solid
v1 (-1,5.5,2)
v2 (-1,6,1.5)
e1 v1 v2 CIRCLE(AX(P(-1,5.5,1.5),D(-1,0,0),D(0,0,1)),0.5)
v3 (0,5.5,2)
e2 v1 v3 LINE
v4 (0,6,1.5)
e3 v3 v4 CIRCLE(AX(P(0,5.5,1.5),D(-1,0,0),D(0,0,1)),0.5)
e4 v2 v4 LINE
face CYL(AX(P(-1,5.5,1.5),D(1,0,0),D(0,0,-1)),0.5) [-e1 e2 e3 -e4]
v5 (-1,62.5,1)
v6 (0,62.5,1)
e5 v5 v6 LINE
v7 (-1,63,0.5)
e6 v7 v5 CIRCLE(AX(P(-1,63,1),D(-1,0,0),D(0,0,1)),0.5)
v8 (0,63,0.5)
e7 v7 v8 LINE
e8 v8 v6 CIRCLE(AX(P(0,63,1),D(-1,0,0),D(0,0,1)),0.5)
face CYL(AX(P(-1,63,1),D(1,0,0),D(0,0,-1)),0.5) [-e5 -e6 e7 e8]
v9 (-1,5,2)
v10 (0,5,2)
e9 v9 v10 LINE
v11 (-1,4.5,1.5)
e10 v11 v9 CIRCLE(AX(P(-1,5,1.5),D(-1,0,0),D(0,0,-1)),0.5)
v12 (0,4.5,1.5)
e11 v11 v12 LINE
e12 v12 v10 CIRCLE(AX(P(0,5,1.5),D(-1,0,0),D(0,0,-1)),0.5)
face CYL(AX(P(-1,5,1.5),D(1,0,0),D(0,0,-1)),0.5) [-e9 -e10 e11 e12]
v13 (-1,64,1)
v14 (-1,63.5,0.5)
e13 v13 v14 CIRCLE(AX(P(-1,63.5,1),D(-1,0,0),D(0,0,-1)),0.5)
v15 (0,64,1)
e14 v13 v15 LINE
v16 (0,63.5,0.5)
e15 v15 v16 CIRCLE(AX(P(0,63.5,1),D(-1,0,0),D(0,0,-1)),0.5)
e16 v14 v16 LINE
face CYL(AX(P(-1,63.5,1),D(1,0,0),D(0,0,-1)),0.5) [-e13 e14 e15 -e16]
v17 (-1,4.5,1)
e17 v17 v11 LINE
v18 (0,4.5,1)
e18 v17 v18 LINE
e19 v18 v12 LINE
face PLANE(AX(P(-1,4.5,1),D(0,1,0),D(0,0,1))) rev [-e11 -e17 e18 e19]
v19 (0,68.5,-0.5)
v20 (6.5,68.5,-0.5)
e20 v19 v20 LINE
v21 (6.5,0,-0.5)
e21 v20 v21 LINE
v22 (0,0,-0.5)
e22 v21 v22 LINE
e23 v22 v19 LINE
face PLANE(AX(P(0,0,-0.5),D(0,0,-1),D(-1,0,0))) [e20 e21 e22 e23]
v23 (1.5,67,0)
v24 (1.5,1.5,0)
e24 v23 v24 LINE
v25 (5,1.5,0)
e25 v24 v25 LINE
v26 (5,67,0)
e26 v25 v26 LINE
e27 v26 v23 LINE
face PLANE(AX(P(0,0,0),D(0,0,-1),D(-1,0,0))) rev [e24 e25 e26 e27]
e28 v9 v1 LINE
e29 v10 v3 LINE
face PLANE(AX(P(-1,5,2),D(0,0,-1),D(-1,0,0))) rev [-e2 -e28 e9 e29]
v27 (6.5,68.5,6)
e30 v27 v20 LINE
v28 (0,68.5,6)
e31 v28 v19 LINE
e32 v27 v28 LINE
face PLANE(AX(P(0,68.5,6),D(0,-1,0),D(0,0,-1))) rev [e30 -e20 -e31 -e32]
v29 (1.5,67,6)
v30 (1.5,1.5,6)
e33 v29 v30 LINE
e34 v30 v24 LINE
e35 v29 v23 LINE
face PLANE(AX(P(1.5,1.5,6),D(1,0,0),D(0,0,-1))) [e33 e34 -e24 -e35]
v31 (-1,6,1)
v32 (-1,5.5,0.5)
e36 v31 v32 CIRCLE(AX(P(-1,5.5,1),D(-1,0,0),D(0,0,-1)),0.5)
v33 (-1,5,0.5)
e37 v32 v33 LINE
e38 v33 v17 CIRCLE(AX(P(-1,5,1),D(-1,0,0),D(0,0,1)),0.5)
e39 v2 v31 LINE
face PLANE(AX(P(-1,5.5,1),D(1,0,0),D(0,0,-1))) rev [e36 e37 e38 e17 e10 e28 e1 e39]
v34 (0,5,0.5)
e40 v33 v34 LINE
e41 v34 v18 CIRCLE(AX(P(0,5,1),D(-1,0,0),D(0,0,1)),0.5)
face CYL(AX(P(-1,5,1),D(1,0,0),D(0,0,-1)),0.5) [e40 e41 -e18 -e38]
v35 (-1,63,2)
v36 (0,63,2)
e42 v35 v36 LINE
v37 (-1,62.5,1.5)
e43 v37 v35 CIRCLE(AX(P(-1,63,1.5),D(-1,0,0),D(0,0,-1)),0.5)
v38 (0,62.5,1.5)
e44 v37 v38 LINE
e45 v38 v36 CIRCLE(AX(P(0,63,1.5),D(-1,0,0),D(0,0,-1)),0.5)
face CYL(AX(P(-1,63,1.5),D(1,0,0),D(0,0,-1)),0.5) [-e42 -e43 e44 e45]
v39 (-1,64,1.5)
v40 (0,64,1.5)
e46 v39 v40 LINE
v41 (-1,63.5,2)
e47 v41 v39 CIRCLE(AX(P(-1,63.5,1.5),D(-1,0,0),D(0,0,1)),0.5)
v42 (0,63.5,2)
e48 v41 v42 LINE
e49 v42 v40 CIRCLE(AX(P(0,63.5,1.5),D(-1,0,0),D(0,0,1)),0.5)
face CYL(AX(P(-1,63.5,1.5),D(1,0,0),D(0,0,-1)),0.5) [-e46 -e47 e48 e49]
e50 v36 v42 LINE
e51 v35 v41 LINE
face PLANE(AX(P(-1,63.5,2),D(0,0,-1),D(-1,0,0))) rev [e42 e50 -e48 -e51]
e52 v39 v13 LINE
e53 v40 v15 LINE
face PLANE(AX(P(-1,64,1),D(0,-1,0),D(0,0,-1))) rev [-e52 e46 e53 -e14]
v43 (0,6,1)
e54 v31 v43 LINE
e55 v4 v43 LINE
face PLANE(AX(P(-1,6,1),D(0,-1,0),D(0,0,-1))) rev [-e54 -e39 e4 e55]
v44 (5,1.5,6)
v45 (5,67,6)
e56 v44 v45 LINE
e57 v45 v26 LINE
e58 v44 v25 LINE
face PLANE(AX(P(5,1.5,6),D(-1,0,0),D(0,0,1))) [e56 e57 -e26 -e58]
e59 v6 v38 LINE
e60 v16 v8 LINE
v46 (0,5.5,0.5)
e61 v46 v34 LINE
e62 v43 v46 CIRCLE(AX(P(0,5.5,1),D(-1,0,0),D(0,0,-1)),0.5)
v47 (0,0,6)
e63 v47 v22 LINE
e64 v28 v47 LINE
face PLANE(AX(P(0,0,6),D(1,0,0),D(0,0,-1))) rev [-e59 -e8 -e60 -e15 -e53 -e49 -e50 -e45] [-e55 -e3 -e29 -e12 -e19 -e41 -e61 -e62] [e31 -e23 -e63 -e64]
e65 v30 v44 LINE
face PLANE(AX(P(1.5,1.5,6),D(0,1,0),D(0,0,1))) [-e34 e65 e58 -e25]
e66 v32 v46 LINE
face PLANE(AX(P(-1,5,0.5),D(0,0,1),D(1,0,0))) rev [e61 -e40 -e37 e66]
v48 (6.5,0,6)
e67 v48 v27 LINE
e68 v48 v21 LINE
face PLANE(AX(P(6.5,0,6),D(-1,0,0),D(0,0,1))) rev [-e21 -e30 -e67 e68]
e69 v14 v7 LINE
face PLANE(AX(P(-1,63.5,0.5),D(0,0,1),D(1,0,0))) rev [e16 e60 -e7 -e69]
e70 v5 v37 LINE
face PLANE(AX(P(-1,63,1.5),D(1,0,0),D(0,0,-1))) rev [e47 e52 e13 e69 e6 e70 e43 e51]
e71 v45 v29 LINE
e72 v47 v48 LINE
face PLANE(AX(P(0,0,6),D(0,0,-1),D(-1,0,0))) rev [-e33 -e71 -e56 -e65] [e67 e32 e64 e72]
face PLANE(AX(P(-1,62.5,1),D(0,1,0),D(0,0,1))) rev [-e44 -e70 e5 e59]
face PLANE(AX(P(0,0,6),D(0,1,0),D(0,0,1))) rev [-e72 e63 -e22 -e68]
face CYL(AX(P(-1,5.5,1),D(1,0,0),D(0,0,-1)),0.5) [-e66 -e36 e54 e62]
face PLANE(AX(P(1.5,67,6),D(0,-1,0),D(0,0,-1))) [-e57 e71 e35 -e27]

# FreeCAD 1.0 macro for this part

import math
import FreeCAD as App
import Part
import Sketcher
from FreeCAD import Vector
Q = App.Units.Quantity


def add_polygon(sketch, points):
    """Adds a closed chain of lines whose ends are joined by coincident constraints."""
    first, n = sketch.GeometryCount, len(points)
    for a, b in zip(points, points[1:] + points[:1]):
        sketch.addGeometry(Part.LineSegment(App.Vector(*a, 0), App.Vector(*b, 0)), False)
    for i in range(n):
        sketch.addConstraint(Sketcher.Constraint("Coincident", first + i, 2, first + (i + 1) % n, 1))

doc = App.newDocument("Part")
body = doc.addObject("PartDesign::Body", "Body")

sketch1 = body.newObject("Sketcher::SketchObject", "Sketch")
sketch1.AttachmentSupport = (doc.getObject("XY_Plane"), [""])
sketch1.MapMode = "FlatFace"
add_polygon(sketch1, [(0, 68.5), (0, 0), (6.5, 0), (6.5, 68.5)])
add_polygon(sketch1, [(5, 1.5), (1.5, 1.5), (1.5, 67), (5, 67)])
sketch1.addConstraint([
    Sketcher.Constraint("Vertical", 0),
    Sketcher.Constraint("Horizontal", 1),
    Sketcher.Constraint("Vertical", 2),
    Sketcher.Constraint("Horizontal", 3),
    Sketcher.Constraint("Horizontal", 4),
    Sketcher.Constraint("Vertical", 5),
    Sketcher.Constraint("Horizontal", 6),
    Sketcher.Constraint("Vertical", 7),
    Sketcher.Constraint("Coincident", 0, 2, -1, 1),
    Sketcher.Constraint("DistanceX", 1, 1, 1, 2, Q("6.5 mm")),
    Sketcher.Constraint("DistanceX", 4, 2, 4, 1, Q("3.5 mm")),
    Sketcher.Constraint("DistanceY", 0, 2, 0, 1, Q("68.5 mm")),
    Sketcher.Constraint("DistanceY", 5, 1, 5, 2, Q("65.5 mm")),
    Sketcher.Constraint("DistanceY", -1, 1, 5, 2, Q("67 mm")),
    Sketcher.Constraint("DistanceX", -1, 1, 6, 2, Q("5 mm")),
])
pad1 = body.newObject("PartDesign::Pad", "Pad")
pad1.Profile = sketch1
pad1.Length = 6

sketch2 = body.newObject("Sketcher::SketchObject", "Sketch001")
sketch2.AttachmentSupport = (doc.getObject("XY_Plane"), [""])
sketch2.MapMode = "FlatFace"
add_polygon(sketch2, [(6, 68), (6, 0), (0, 0), (0, 68)])
sketch2.addConstraint([
    Sketcher.Constraint("Vertical", 0),
    Sketcher.Constraint("Horizontal", 1),
    Sketcher.Constraint("Vertical", 2),
    Sketcher.Constraint("Horizontal", 3),
    Sketcher.Constraint("Coincident", 1, 2, -1, 1),
    Sketcher.Constraint("DistanceX", 1, 2, 1, 1, Q("6.5 mm")),
    Sketcher.Constraint("DistanceY", 0, 2, 0, 1, Q("68.5 mm")),
])
pad2 = body.newObject("PartDesign::Pad", "Pad001")
pad2.Profile = sketch2
pad2.Length = 0.5
pad2.Reversed = True

sketch3 = body.newObject("Sketcher::SketchObject", "Sketch002")
sketch3.AttachmentSupport = (doc.getObject("YZ_Plane"), [""])
sketch3.MapMode = "FlatFace"
sketch3.addGeometry([
    Part.LineSegment(Vector(64, 1.5, 0), Vector(64, 1, 0)),
    Part.ArcOfCircle(Part.Circle(Vector(63.5, 1, 0), Vector(0, 0, 1), 0.5), math.radians(-90), math.radians(0)),
    Part.LineSegment(Vector(63.5, 0.5, 0), Vector(63, 0.5, 0)),
    Part.ArcOfCircle(Part.Circle(Vector(63, 1, 0), Vector(0, 0, 1), 0.5), math.radians(180), math.radians(270)),
    Part.LineSegment(Vector(62.5, 1, 0), Vector(62.5, 1.5, 0)),
    Part.ArcOfCircle(Part.Circle(Vector(63, 1.5, 0), Vector(0, 0, 1), 0.5), math.radians(90), math.radians(180)),
    Part.LineSegment(Vector(63, 2, 0), Vector(63.5, 2, 0)),
    Part.ArcOfCircle(Part.Circle(Vector(63.5, 1.5, 0), Vector(0, 0, 1), 0.5), math.radians(0), math.radians(90)),
    Part.LineSegment(Vector(6, 1.5, 0), Vector(6, 1, 0)),
    Part.ArcOfCircle(Part.Circle(Vector(5.5, 1, 0), Vector(0, 0, 1), 0.5), math.radians(-90), math.radians(0)),
    Part.LineSegment(Vector(5.5, 0.5, 0), Vector(5, 0.5, 0)),
    Part.ArcOfCircle(Part.Circle(Vector(5, 1, 0), Vector(0, 0, 1), 0.5), math.radians(180), math.radians(270)),
    Part.LineSegment(Vector(4.5, 1, 0), Vector(4.5, 1.5, 0)),
    Part.ArcOfCircle(Part.Circle(Vector(5, 1.5, 0), Vector(0, 0, 1), 0.5), math.radians(90), math.radians(180)),
    Part.LineSegment(Vector(5, 2, 0), Vector(5.5, 2, 0)),
    Part.ArcOfCircle(Part.Circle(Vector(5.5, 1.5, 0), Vector(0, 0, 1), 0.5), math.radians(0), math.radians(90)),
], False)
sketch3.addConstraint([
    Sketcher.Constraint("Tangent", 0, 2, 1, 2),
    Sketcher.Constraint("Tangent", 1, 1, 2, 1),
    Sketcher.Constraint("Tangent", 2, 2, 3, 2),
    Sketcher.Constraint("Tangent", 3, 1, 4, 1),
    Sketcher.Constraint("Tangent", 4, 2, 5, 2),
    Sketcher.Constraint("Tangent", 5, 1, 6, 1),
    Sketcher.Constraint("Tangent", 6, 2, 7, 2),
    Sketcher.Constraint("Tangent", 7, 1, 0, 1),
    Sketcher.Constraint("Tangent", 8, 2, 9, 2),
    Sketcher.Constraint("Tangent", 9, 1, 10, 1),
    Sketcher.Constraint("Tangent", 10, 2, 11, 2),
    Sketcher.Constraint("Tangent", 11, 1, 12, 1),
    Sketcher.Constraint("Tangent", 12, 2, 13, 2),
    Sketcher.Constraint("Tangent", 13, 1, 14, 1),
    Sketcher.Constraint("Tangent", 14, 2, 15, 2),
    Sketcher.Constraint("Tangent", 15, 1, 8, 1),
    Sketcher.Constraint("Vertical", 0),
    Sketcher.Constraint("Horizontal", 2),
    Sketcher.Constraint("Vertical", 4),
    Sketcher.Constraint("Horizontal", 6),
    Sketcher.Constraint("Vertical", 8),
    Sketcher.Constraint("Horizontal", 10),
    Sketcher.Constraint("Vertical", 12),
    Sketcher.Constraint("Horizontal", 14),
    Sketcher.Constraint("Equal", 1, 3),
    Sketcher.Constraint("Equal", 3, 5),
    Sketcher.Constraint("Equal", 5, 7),
    Sketcher.Constraint("Equal", 7, 9),
    Sketcher.Constraint("Equal", 9, 11),
    Sketcher.Constraint("Equal", 11, 13),
    Sketcher.Constraint("Equal", 13, 15),
    Sketcher.Constraint("Horizontal", 3, 3, 9, 3),
    Sketcher.Constraint("Horizontal", 7, 3, 13, 3),
    Sketcher.Constraint("Equal", 6, 10),
    Sketcher.Constraint("Equal", 14, 0),
    Sketcher.Constraint("Radius", 1, Q("0.5 mm")),
    Sketcher.Constraint("DistanceX", 2, 2, 2, 1, Q("0.5 mm")),
    Sketcher.Constraint("DistanceY", -1, 1, 1, 3, Q("1 mm")),
    Sketcher.Constraint("DistanceX", -1, 1, 3, 3, Q("63 mm")),
    Sketcher.Constraint("DistanceX", -1, 1, 11, 3, Q("5 mm")),
])
pad3 = body.newObject("PartDesign::Pad", "Pad002")
pad3.Profile = sketch3
pad3.Length = 1
pad3.Reversed = True

doc.recompute()
